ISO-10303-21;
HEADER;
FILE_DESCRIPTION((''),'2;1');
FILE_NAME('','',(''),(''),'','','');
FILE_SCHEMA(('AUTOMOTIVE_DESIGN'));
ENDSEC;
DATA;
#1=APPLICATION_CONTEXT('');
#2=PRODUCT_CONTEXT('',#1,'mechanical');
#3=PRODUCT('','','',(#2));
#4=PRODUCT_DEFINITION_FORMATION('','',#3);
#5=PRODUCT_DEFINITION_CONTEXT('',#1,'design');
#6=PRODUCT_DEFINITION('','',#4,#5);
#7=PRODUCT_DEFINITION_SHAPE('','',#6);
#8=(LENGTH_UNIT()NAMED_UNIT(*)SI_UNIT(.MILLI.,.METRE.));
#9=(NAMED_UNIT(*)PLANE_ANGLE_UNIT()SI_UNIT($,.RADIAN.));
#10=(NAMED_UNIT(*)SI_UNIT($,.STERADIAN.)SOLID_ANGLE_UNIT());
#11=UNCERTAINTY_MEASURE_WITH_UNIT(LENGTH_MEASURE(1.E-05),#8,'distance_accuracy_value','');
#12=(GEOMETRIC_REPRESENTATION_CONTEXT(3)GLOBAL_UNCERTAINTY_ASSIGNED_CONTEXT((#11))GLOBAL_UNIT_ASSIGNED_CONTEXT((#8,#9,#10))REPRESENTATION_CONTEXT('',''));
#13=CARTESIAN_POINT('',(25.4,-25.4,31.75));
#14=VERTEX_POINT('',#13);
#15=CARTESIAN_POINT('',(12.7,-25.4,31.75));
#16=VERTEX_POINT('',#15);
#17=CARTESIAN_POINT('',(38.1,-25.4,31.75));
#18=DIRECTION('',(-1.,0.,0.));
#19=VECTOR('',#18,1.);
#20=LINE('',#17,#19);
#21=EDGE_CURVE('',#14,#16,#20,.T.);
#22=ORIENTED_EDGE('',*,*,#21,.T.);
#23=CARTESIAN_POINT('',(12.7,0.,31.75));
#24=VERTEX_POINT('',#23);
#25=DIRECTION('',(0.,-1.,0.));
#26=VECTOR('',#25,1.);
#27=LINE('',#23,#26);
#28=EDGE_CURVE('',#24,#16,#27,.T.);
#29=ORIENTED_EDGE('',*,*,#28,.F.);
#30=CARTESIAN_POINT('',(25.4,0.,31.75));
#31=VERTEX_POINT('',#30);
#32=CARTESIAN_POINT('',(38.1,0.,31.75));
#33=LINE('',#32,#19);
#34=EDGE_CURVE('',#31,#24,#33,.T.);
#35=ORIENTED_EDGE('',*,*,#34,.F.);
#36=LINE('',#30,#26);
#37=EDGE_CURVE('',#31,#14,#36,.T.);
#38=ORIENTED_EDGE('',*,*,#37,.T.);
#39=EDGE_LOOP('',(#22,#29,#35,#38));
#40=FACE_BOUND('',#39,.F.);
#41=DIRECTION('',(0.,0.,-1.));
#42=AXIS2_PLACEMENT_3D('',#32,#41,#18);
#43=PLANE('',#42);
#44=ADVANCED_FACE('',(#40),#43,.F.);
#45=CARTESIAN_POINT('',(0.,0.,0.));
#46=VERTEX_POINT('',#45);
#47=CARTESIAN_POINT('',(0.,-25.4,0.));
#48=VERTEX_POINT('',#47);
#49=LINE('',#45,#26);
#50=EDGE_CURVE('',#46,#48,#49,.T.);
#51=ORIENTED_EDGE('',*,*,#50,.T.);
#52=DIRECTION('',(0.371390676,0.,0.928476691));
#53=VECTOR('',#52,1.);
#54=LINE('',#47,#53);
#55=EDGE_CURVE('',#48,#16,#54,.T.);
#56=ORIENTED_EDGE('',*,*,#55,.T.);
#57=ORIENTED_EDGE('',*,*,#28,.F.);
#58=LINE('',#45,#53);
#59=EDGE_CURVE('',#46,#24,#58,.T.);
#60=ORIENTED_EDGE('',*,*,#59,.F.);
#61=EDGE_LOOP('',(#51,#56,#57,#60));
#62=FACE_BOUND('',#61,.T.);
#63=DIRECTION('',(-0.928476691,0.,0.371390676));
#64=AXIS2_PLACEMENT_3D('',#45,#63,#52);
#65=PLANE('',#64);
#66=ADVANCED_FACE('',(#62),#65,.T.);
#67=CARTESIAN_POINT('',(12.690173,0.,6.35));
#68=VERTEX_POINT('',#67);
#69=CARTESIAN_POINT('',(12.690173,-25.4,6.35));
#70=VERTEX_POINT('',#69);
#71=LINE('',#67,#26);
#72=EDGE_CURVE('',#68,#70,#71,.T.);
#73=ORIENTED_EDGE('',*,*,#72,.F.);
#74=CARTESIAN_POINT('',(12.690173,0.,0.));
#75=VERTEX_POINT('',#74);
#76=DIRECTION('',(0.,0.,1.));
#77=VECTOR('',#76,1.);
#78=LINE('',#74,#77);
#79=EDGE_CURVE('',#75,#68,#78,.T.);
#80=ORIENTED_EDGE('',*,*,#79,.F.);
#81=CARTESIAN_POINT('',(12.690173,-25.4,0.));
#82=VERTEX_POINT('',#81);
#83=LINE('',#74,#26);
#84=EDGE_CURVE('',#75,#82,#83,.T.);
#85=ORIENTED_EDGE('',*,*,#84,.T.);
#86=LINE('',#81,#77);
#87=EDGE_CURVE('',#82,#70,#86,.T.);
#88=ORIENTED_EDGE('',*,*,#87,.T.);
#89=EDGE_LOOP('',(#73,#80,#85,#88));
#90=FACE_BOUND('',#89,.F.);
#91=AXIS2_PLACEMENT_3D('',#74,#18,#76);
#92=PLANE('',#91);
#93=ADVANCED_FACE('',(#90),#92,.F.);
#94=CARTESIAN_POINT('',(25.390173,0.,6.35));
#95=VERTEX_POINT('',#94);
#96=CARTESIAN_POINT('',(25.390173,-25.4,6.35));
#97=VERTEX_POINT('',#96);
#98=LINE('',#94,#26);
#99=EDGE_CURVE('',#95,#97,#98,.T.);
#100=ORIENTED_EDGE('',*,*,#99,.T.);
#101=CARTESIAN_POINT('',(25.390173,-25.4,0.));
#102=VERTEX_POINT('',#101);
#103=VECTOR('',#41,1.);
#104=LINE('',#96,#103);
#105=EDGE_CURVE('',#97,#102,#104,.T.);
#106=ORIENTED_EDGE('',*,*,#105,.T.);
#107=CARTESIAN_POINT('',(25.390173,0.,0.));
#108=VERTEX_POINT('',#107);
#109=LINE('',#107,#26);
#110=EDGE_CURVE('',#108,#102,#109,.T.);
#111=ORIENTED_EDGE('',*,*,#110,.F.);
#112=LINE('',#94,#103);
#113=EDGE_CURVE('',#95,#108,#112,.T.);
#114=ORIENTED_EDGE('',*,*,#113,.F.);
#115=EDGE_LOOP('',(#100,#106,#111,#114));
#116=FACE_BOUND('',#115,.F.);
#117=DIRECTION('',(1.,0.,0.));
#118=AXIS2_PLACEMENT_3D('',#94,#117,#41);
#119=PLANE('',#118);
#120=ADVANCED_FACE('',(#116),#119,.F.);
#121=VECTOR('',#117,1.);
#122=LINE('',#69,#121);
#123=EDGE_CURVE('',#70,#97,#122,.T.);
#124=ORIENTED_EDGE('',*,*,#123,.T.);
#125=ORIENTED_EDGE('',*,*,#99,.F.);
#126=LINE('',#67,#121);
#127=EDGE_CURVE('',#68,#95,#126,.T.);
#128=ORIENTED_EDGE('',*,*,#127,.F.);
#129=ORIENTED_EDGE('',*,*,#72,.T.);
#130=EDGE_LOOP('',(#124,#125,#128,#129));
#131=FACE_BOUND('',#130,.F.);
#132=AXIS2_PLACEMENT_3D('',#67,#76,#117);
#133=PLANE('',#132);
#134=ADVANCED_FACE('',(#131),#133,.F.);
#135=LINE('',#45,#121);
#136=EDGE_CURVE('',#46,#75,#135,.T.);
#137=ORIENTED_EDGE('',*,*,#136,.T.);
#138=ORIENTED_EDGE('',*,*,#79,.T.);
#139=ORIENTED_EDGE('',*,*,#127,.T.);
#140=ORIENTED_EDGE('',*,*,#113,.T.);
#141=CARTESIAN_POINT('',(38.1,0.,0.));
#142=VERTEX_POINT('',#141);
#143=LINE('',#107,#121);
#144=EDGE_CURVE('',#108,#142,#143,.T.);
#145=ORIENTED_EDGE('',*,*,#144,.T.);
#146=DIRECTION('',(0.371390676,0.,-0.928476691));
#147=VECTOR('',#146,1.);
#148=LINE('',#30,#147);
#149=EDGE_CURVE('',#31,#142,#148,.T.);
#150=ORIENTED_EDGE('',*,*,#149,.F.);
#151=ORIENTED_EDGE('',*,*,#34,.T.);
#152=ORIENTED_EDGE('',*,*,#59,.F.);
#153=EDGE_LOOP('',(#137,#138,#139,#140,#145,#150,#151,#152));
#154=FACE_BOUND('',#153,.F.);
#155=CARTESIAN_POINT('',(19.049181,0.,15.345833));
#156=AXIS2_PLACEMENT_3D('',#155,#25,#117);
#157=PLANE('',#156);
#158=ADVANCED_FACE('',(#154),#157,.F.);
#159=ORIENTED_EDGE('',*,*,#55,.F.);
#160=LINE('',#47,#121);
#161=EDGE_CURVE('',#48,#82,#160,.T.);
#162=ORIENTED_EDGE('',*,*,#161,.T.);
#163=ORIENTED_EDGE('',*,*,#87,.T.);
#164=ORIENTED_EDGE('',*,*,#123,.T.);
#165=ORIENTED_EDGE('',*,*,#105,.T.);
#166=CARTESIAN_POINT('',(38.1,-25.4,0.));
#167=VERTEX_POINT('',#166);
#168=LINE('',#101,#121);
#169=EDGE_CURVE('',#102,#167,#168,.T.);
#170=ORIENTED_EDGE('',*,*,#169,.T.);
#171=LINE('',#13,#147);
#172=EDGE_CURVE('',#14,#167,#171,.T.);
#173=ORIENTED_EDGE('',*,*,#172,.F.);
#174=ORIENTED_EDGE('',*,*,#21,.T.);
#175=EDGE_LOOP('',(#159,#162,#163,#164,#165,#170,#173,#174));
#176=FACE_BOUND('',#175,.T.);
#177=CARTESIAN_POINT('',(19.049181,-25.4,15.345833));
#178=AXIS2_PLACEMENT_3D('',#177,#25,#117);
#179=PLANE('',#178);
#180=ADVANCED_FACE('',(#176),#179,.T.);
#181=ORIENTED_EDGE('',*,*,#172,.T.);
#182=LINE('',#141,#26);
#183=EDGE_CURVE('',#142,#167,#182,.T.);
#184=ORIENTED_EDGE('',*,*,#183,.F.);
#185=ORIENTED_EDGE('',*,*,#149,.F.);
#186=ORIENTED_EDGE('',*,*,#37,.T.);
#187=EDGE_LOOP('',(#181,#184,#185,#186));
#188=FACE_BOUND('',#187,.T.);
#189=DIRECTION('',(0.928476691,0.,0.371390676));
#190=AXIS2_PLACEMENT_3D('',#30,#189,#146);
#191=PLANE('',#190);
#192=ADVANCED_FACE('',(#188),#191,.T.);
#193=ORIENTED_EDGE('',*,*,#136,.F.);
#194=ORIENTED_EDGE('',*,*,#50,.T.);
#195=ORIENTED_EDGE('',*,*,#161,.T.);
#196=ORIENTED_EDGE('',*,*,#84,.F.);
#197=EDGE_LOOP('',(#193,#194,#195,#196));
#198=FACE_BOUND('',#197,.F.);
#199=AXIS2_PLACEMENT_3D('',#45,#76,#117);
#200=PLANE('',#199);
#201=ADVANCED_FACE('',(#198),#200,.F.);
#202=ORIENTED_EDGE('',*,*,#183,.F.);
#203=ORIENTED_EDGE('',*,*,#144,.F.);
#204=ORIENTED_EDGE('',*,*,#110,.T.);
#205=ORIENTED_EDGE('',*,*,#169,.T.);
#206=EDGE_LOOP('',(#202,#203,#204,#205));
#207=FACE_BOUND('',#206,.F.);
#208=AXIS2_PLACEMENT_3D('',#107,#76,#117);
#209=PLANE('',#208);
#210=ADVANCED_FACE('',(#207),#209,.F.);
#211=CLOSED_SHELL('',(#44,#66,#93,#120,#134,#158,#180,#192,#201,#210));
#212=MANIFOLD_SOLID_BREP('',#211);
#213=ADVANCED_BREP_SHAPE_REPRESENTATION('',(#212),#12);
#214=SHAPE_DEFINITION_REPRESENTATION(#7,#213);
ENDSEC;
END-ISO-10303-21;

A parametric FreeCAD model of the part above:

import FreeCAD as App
import Part
import Sketcher
Q = App.Units.Quantity


def add_polygon(sketch, points):
    """Adds a closed chain of lines whose ends are joined by coincident constraints."""
    first, n = sketch.GeometryCount, len(points)
    for a, b in zip(points, points[1:] + points[:1]):
        sketch.addGeometry(Part.LineSegment(App.Vector(*a, 0), App.Vector(*b, 0)), False)
    for i in range(n):
        sketch.addConstraint(Sketcher.Constraint("Coincident", first + i, 2, first + (i + 1) % n, 1))

doc = App.newDocument("Part")
body = doc.addObject("PartDesign::Body", "Body")

# Sketch on XZ plane
sketch1 = body.newObject("Sketcher::SketchObject", "Sketch")
sketch1.AttachmentSupport = (doc.getObject("XZ_Plane"), [""])
sketch1.MapMode = "FlatFace"
add_polygon(sketch1, [(0, 31.75), (0, 0), (12.690173, 0), (12.690173, 6.35), (25.390173, 6.35), (25.390173, 0), (38.1, 0), (38.1, 31.75)])  # lines 0-7
sketch1.addConstraint([
    Sketcher.Constraint("Vertical", 0),
    Sketcher.Constraint("Horizontal", 1),
    Sketcher.Constraint("Vertical", 2),
    Sketcher.Constraint("Horizontal", 3),
    Sketcher.Constraint("Vertical", 4),
    Sketcher.Constraint("Horizontal", 5),
    Sketcher.Constraint("Vertical", 6),
    Sketcher.Constraint("Horizontal", 7),
    Sketcher.Constraint("Coincident", 0, 2, -1, 1),
    Sketcher.Constraint("PointOnObject", 4, 2, -1),
    Sketcher.Constraint("DistanceX", 3, 1, 3, 2, Q("0.5 in")),
    Sketcher.Constraint("DistanceX", 7, 2, 7, 1, Q("1.5 in")),
    Sketcher.Constraint("DistanceY", 3, 2, 6, 2, Q("1 in")),
    Sketcher.Constraint("DistanceY", 0, 2, 0, 1, Q("1.25 in")),
    Sketcher.Constraint("DistanceX", 1, 1, 1, 2, Q("12.690173 mm")),
])
pad1 = body.newObject("PartDesign::Pad", "Pad")
pad1.Profile = sketch1
pad1.Length = Q("1 in")

# Sketch on XZ plane
sketch2 = body.newObject("Sketcher::SketchObject", "Sketch001")
sketch2.AttachmentSupport = (doc.getObject("XZ_Plane"), [""])
sketch2.MapMode = "FlatFace"
add_polygon(sketch2, [(0, 31.75), (0, 0), (12.7, 31.75)])  # lines 0-2
add_polygon(sketch2, [(25.4, 31.75), (38.1, 0), (38.1, 31.75)])  # lines 3-5
sketch2.addConstraint([
    Sketcher.Constraint("Vertical", 0),
    Sketcher.Constraint("Horizontal", 2),
    Sketcher.Constraint("Vertical", 4),
    Sketcher.Constraint("Horizontal", 5),
    Sketcher.Constraint("Coincident", 0, 2, -1, 1),
    Sketcher.Constraint("PointOnObject", 3, 2, -1),
    Sketcher.Constraint("Horizontal", 2, 2, 4, 2),
    Sketcher.Constraint("Equal", 2, 5),
    Sketcher.Constraint("DistanceX", 2, 2, 2, 1, Q("0.5 in")),
    Sketcher.Constraint("DistanceX", -1, 1, 5, 2, Q("1 in")),
    Sketcher.Constraint("DistanceY", 0, 2, 0, 1, Q("1.25 in")),
])
pocket1 = body.newObject("PartDesign::Pocket", "Pocket")
pocket1.Profile = sketch2
pocket1.Length = Q("1 in")
pocket1.Reversed = True

doc.recompute()
